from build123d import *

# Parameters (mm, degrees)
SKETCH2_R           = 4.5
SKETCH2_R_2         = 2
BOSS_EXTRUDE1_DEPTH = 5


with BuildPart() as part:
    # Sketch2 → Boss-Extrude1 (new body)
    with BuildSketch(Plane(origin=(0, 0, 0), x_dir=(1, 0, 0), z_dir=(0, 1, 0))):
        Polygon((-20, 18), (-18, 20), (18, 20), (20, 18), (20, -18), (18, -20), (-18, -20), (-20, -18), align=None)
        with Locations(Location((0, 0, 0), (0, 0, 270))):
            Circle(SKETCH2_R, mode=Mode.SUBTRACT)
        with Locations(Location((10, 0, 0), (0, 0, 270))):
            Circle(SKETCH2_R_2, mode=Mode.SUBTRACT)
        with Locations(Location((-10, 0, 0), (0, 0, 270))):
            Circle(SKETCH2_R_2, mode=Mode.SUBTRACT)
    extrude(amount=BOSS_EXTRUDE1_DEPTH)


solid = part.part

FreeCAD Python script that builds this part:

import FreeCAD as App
import Part
import Sketcher

V = App.Vector


def add_polygon(sketch, points):
    """Adds a closed chain of lines whose ends are joined by coincident constraints."""
    first, n = sketch.GeometryCount, len(points)
    for a, b in zip(points, points[1:] + points[:1]):
        sketch.addGeometry(Part.LineSegment(App.Vector(*a, 0), App.Vector(*b, 0)), False)
    for i in range(n):
        sketch.addConstraint(Sketcher.Constraint("Coincident", first + i, 2, first + (i + 1) % n, 1))

doc = App.newDocument("Part")
body = doc.addObject("PartDesign::Body", "Body")

sketch1 = body.newObject("Sketcher::SketchObject", "Sketch")
sketch1.AttachmentSupport = (doc.getObject("XZ_Plane"), [""])
sketch1.MapMode = "FlatFace"
add_polygon(sketch1, [(-18, -20), (-20, -18), (-20, 18), (-18, 20), (18, 20), (20, 18), (20, -18), (18, -20)])
sketch1.addGeometry(Part.Circle(V(10, 0, 0), V(0, 0, 1), 2), False)
sketch1.addGeometry(Part.Circle(V(0, 0, 0), V(0, 0, 1), 4.5), False)
sketch1.addGeometry(Part.Circle(V(-10, 0, 0), V(0, 0, 1), 2), False)
sketch1.addConstraint([
    Sketcher.Constraint("Vertical", 1),
    Sketcher.Constraint("Horizontal", 3),
    Sketcher.Constraint("Vertical", 5),
    Sketcher.Constraint("Horizontal", 7),
    Sketcher.Constraint("Coincident", 9, 3, -1, 1),
    Sketcher.Constraint("Equal", 8, 10),
    Sketcher.Constraint("Symmetric", 8, 3, 10, 3, -1, 1),
    Sketcher.Constraint("Symmetric", 0, 2, 4, 2, -1, 1),
    Sketcher.Constraint("Symmetric", 2, 2, 6, 2, -1, 1),
    Sketcher.Constraint("PointOnObject", 8, 3, -1),
    Sketcher.Constraint("Perpendicular", 0, 2),
    Sketcher.Constraint("Perpendicular", 2, 4),
    Sketcher.Constraint("Perpendicular", 4, 6),
    Sketcher.Constraint("Horizontal", 1, 2, 4, 2),
    Sketcher.Constraint("Vertical", 3, 2, 6, 2),
    Sketcher.Constraint("Equal", 7, 1),
    Sketcher.Constraint("Diameter", 8, 4.0),
    Sketcher.Constraint("Diameter", 9, 9.0),
    Sketcher.Constraint("DistanceX", 3, 1, 3, 2, 36.0),
    Sketcher.Constraint("DistanceX", -1, 1, 8, 3, 10.0),
    Sketcher.Constraint("DistanceX", 0, 2, -1, 1, 20.0),
])
pad1 = body.newObject("PartDesign::Pad", "Pad")
pad1.Profile = sketch1
pad1.Length = 5
pad1.Reversed = True

doc.recompute()
